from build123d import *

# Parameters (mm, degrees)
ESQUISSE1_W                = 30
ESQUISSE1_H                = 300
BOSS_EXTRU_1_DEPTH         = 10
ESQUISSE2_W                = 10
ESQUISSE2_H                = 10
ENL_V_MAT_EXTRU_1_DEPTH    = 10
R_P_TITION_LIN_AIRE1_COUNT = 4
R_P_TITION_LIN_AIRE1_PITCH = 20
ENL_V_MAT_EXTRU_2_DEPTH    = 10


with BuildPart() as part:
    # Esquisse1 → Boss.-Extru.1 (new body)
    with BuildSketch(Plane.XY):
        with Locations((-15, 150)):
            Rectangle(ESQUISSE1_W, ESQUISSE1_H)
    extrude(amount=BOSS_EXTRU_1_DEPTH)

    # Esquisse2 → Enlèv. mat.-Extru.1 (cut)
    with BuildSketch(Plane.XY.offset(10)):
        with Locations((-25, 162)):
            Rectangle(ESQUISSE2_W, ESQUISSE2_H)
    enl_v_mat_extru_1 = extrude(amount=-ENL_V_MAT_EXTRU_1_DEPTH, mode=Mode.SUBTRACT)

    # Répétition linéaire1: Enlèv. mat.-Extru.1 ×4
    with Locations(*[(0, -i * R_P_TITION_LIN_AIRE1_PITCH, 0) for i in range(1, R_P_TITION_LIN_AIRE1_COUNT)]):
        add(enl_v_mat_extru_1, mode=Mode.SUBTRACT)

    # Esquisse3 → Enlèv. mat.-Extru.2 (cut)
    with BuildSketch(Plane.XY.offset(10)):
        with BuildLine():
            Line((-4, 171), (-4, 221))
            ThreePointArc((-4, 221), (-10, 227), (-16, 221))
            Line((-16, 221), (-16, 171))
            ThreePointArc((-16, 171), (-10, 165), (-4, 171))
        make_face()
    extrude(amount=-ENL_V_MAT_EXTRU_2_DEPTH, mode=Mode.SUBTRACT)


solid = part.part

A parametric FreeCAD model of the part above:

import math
import FreeCAD as App
import Part
import Sketcher
Q = App.Units.Quantity

doc = App.newDocument("Part")
params = doc.addObject("Spreadsheet::Sheet", "Params")
for row, (alias, value) in enumerate([
    ("sketch1_width", "30 mm"),
    ("sketch1_height", "300 mm"),
    ("pad1_length", "10 mm"),
    ("sketch2_width", "10 mm"),
    ("pocket1_length", "10 mm"),
    ("linearpattern_pitch", "20 mm"),
    ("sketch3_radius", "6 mm"),
    ("sketch3_height", "50 mm"),
    ("pocket2_length", "10 mm"),
], start=1):
    params.set(f"A{row}", alias)
    params.set(f"B{row}", "=" + value)
    params.setAlias(f"B{row}", alias)

body = doc.addObject("PartDesign::Body", "Body")

# Sketch on XY plane
sketch1 = body.newObject("Sketcher::SketchObject", "Sketch")
sketch1.AttachmentSupport = (doc.getObject("XY_Plane"), [""])
sketch1.MapMode = "FlatFace"
sketch1.addGeometry([
    Part.LineSegment(App.Vector(-30, 300, 0), App.Vector(-30, 0, 0)),
    Part.LineSegment(App.Vector(-30, 0, 0), App.Vector(0, 0, 0)),
    Part.LineSegment(App.Vector(0, 0, 0), App.Vector(0, 300, 0)),
    Part.LineSegment(App.Vector(0, 300, 0), App.Vector(-30, 300, 0)),
], False)
sketch1.addConstraint([
    Sketcher.Constraint("Coincident", 0, 2, 1, 1),
    Sketcher.Constraint("Coincident", 1, 2, 2, 1),
    Sketcher.Constraint("Coincident", 2, 2, 3, 1),
    Sketcher.Constraint("Coincident", 3, 2, 0, 1),
    Sketcher.Constraint("Vertical", 0),
    Sketcher.Constraint("Horizontal", 1),
    Sketcher.Constraint("Vertical", 2),
    Sketcher.Constraint("Horizontal", 3),
    Sketcher.Constraint("Coincident", 1, 2, -1, 1),
    Sketcher.Constraint("DistanceX", 1, 1, 1, 2, Q("30 mm")),
    Sketcher.Constraint("DistanceY", 0, 2, 0, 1, Q("300 mm")),
])
sketch1.setExpression("Constraints[9]", "Params.sketch1_width")
sketch1.setExpression("Constraints[10]", "Params.sketch1_height")
pad1 = body.newObject("PartDesign::Pad", "Pad")
pad1.Profile = sketch1
pad1.setExpression("Length", "Params.pad1_length")

# Sketch on XY plane
sketch2 = body.newObject("Sketcher::SketchObject", "Sketch001")
sketch2.AttachmentSupport = (doc.getObject("XY_Plane"), [""])
sketch2.MapMode = "FlatFace"
sketch2.AttachmentOffset = App.Placement(App.Vector(0, 0, 10), App.Rotation())
sketch2.addGeometry([
    Part.LineSegment(App.Vector(-30, 167, 0), App.Vector(-30, 157, 0)),
    Part.LineSegment(App.Vector(-30, 157, 0), App.Vector(-20, 157, 0)),
    Part.LineSegment(App.Vector(-20, 157, 0), App.Vector(-20, 167, 0)),
    Part.LineSegment(App.Vector(-20, 167, 0), App.Vector(-30, 167, 0)),
], False)
sketch2.addConstraint([
    Sketcher.Constraint("Coincident", 0, 2, 1, 1),
    Sketcher.Constraint("Coincident", 1, 2, 2, 1),
    Sketcher.Constraint("Coincident", 2, 2, 3, 1),
    Sketcher.Constraint("Coincident", 3, 2, 0, 1),
    Sketcher.Constraint("Vertical", 0),
    Sketcher.Constraint("Horizontal", 1),
    Sketcher.Constraint("Vertical", 2),
    Sketcher.Constraint("Horizontal", 3),
    Sketcher.Constraint("Equal", 3, 0),
    Sketcher.Constraint("DistanceX", 1, 1, 1, 2, Q("10 mm")),
    Sketcher.Constraint("DistanceX", 0, 2, -1, 1, Q("30 mm")),
    Sketcher.Constraint("DistanceY", -1, 1, 0, 2, Q("157 mm")),
])
sketch2.setExpression("Constraints[9]", "Params.sketch2_width")
pocket1 = body.newObject("PartDesign::Pocket", "Pocket")
pocket1.Profile = sketch2
pocket1.setExpression("Length", "Params.pocket1_length")
doc.recompute()

linearpattern = body.newObject("PartDesign::LinearPattern", "LinearPattern")
linearpattern.Originals = [pocket1]
linearpattern.Direction = (doc.getObject("Y_Axis"), [""])
linearpattern.Mode = "offset"
linearpattern.setExpression("Offset", "Params.linearpattern_pitch")
linearpattern.Occurrences = 4
linearpattern.Reversed = True
body.Tip = linearpattern

# Sketch on XY plane
sketch3 = body.newObject("Sketcher::SketchObject", "Sketch002")
sketch3.AttachmentSupport = (doc.getObject("XY_Plane"), [""])
sketch3.MapMode = "FlatFace"
sketch3.AttachmentOffset = App.Placement(App.Vector(0, 0, 10), App.Rotation())
sketch3.addGeometry([
    Part.LineSegment(App.Vector(-4, 171, 0), App.Vector(-4, 221, 0)),
    Part.ArcOfCircle(Part.Circle(App.Vector(-10, 221, 0), App.Vector(0, 0, 1), 6), math.radians(0), math.radians(180)),
    Part.LineSegment(App.Vector(-16, 221, 0), App.Vector(-16, 171, 0)),
    Part.ArcOfCircle(Part.Circle(App.Vector(-10, 171, 0), App.Vector(0, 0, 1), 6), math.radians(180), math.radians(360)),
], False)
sketch3.addConstraint([
    Sketcher.Constraint("Tangent", 0, 2, 1, 1),
    Sketcher.Constraint("Tangent", 1, 2, 2, 1),
    Sketcher.Constraint("Tangent", 2, 2, 3, 1),
    Sketcher.Constraint("Tangent", 3, 2, 0, 1),
    Sketcher.Constraint("Vertical", 0),
    Sketcher.Constraint("Vertical", 2),
    Sketcher.Constraint("Radius", 1, Q("6 mm")),
    Sketcher.Constraint("DistanceY", 0, 1, 0, 2, Q("50 mm")),
    Sketcher.Constraint("DistanceX", 1, 3, -1, 1, Q("10 mm")),
    Sketcher.Constraint("DistanceY", -1, 1, 1, 3, Q("221 mm")),
])
sketch3.setExpression("Constraints[6]", "Params.sketch3_radius")
sketch3.setExpression("Constraints[7]", "Params.sketch3_height")
pocket2 = body.newObject("PartDesign::Pocket", "Pocket001")
pocket2.Profile = sketch3
pocket2.setExpression("Length", "Params.pocket2_length")

doc.recompute()
